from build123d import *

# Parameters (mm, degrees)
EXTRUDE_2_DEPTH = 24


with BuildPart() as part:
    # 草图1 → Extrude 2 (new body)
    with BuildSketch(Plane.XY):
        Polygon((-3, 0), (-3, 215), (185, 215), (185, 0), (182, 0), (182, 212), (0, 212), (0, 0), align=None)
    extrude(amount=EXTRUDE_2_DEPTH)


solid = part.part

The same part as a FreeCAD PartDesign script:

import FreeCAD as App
import Part
import Sketcher

V = App.Vector
Q = App.Units.Quantity

doc = App.newDocument("Part")
body = doc.addObject("PartDesign::Body", "Body")

# Sketch on XY plane
sketch1 = body.newObject("Sketcher::SketchObject", "Sketch")
sketch1.AttachmentSupport = (doc.getObject("XY_Plane"), [""])
sketch1.MapMode = "FlatFace"
sketch1.addGeometry([
    Part.LineSegment(V(-3, 215, 0), V(-3, 0, 0)),  # 0
    Part.LineSegment(V(-3, 0, 0), V(0, 0, 0)),  # 1
    Part.LineSegment(V(0, 0, 0), V(0, 212, 0)),  # 2
    Part.LineSegment(V(0, 212, 0), V(182, 212, 0)),  # 3
    Part.LineSegment(V(182, 212, 0), V(182, 0, 0)),  # 4
    Part.LineSegment(V(182, 0, 0), V(185, 0, 0)),  # 5
    Part.LineSegment(V(185, 0, 0), V(185, 215, 0)),  # 6
    Part.LineSegment(V(185, 215, 0), V(-3, 215, 0)),  # 7
], False)
sketch1.addConstraint([
    Sketcher.Constraint("Coincident", 0, 2, 1, 1),
    Sketcher.Constraint("Coincident", 1, 2, 2, 1),
    Sketcher.Constraint("Coincident", 2, 2, 3, 1),
    Sketcher.Constraint("Coincident", 3, 2, 4, 1),
    Sketcher.Constraint("Coincident", 4, 2, 5, 1),
    Sketcher.Constraint("Coincident", 5, 2, 6, 1),
    Sketcher.Constraint("Coincident", 6, 2, 7, 1),
    Sketcher.Constraint("Coincident", 7, 2, 0, 1),
    Sketcher.Constraint("Vertical", 0),
    Sketcher.Constraint("Horizontal", 1),
    Sketcher.Constraint("Vertical", 2),
    Sketcher.Constraint("Horizontal", 3),
    Sketcher.Constraint("Vertical", 4),
    Sketcher.Constraint("Horizontal", 5),
    Sketcher.Constraint("Vertical", 6),
    Sketcher.Constraint("Horizontal", 7),
    Sketcher.Constraint("Coincident", 1, 2, -1, 1),
    Sketcher.Constraint("PointOnObject", 4, 2, -1),
    Sketcher.Constraint("Equal", 1, 5),
    Sketcher.Constraint("DistanceX", 1, 1, 1, 2, Q("3 mm")),
    Sketcher.Constraint("DistanceX", 3, 1, 3, 2, Q("182 mm")),
    Sketcher.Constraint("DistanceY", 0, 2, 0, 1, Q("215 mm")),
    Sketcher.Constraint("DistanceY", 2, 1, 2, 2, Q("212 mm")),
])
pad1 = body.newObject("PartDesign::Pad", "Pad")
pad1.Profile = sketch1
pad1.Length = 24

doc.recompute()
